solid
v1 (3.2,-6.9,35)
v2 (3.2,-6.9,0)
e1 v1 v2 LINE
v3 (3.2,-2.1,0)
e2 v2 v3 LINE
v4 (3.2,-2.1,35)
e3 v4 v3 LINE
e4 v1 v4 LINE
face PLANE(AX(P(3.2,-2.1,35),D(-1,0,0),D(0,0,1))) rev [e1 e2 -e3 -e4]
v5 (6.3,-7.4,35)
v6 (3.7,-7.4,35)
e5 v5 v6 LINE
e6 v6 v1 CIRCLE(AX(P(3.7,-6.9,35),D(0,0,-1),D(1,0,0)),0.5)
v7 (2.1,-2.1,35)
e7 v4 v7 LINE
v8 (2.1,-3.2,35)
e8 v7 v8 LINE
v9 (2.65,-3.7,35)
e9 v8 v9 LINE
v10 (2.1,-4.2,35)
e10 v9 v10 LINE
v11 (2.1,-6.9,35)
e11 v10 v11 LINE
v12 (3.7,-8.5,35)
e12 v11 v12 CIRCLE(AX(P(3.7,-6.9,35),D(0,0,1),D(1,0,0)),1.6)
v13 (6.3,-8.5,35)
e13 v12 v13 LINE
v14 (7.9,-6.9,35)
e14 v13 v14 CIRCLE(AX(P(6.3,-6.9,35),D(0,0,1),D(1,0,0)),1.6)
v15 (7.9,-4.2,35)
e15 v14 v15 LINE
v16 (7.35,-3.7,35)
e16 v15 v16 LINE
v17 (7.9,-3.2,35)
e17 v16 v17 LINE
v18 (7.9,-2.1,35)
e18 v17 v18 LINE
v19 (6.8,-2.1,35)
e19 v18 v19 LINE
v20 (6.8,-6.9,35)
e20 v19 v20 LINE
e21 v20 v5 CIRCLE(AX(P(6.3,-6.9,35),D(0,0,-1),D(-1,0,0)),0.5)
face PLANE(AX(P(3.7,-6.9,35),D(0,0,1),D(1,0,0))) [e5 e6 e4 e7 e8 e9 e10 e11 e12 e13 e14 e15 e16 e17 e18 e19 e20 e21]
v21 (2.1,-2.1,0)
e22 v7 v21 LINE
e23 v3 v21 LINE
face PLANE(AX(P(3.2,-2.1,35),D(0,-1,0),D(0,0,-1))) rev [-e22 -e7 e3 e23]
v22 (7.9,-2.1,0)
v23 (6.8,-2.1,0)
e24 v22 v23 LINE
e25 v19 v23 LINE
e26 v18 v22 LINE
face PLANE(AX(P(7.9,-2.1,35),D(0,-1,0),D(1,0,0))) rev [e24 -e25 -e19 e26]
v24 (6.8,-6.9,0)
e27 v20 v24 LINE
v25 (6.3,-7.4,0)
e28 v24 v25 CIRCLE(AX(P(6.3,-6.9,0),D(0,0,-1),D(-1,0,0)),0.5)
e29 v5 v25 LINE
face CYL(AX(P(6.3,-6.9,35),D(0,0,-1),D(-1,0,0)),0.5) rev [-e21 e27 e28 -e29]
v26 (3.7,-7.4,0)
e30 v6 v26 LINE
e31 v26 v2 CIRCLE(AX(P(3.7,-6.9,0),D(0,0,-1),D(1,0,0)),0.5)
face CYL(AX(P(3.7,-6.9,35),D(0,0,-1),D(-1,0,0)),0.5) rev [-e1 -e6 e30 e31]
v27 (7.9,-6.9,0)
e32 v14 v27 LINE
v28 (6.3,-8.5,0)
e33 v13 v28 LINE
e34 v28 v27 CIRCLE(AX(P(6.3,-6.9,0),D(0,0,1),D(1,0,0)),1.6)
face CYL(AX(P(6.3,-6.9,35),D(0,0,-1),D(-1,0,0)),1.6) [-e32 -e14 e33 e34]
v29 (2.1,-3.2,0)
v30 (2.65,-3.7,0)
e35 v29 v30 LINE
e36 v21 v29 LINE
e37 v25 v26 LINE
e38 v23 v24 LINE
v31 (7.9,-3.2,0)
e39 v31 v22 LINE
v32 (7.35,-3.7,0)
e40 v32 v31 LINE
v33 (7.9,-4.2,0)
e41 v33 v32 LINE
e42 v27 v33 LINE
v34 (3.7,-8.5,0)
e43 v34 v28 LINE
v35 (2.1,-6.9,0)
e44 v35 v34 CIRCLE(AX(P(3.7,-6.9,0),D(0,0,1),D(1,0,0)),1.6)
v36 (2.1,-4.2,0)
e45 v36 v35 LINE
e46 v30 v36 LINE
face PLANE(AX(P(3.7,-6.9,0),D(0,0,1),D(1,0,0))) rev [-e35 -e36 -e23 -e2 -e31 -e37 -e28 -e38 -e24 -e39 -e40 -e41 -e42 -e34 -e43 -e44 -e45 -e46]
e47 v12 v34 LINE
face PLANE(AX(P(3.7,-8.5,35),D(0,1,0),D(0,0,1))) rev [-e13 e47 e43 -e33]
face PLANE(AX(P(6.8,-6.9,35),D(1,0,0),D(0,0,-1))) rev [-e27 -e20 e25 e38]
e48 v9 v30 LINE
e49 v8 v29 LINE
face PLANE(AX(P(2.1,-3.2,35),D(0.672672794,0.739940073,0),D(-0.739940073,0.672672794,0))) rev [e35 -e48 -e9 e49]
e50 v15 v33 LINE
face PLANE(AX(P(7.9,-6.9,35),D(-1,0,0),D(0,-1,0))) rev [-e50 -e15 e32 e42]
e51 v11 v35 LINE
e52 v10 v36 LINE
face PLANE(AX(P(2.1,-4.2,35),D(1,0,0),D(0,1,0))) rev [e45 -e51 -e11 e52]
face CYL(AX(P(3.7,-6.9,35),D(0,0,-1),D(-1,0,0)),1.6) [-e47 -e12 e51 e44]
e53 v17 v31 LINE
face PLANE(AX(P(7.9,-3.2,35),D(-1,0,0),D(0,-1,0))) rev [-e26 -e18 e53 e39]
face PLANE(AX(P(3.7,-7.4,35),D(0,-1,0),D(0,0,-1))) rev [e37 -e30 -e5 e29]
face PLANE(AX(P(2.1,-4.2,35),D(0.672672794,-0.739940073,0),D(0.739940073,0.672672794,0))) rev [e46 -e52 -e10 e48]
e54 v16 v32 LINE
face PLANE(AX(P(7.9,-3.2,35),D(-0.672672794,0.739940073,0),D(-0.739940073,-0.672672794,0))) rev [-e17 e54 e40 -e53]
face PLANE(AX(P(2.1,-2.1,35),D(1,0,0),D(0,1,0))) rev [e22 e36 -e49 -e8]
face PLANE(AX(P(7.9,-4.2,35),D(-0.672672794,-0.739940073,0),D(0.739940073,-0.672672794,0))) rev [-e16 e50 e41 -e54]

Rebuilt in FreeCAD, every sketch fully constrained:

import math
import FreeCAD as App
import Part
import Sketcher
from FreeCAD import Vector
Q = App.Units.Quantity

doc = App.newDocument("Part")
body = doc.addObject("PartDesign::Body", "Body")

# Sketch on XY plane
sketch1 = body.newObject("Sketcher::SketchObject", "Sketch")
sketch1.AttachmentSupport = (doc.getObject("XY_Plane"), [""])
sketch1.MapMode = "FlatFace"
sketch1.addGeometry([
    Part.LineSegment(Vector(6.8, -2.1, 0), Vector(6.8, -6.9, 0)),  # 0
    Part.ArcOfCircle(Part.Circle(Vector(6.3, -6.9, 0), Vector(0, 0, 1), 0.5), math.radians(-90), math.radians(0)),  # 1
    Part.LineSegment(Vector(6.3, -7.4, 0), Vector(3.7, -7.4, 0)),  # 2
    Part.ArcOfCircle(Part.Circle(Vector(3.7, -6.9, 0), Vector(0, 0, 1), 0.5), math.radians(180), math.radians(270)),  # 3
    Part.LineSegment(Vector(3.2, -6.9, 0), Vector(3.2, -2.1, 0)),  # 4
    Part.LineSegment(Vector(3.2, -2.1, 0), Vector(2.1, -2.1, 0)),  # 5
    Part.LineSegment(Vector(2.1, -2.1, 0), Vector(2.1, -3.2, 0)),  # 6
    Part.LineSegment(Vector(2.1, -3.2, 0), Vector(2.65, -3.7, 0)),  # 7
    Part.LineSegment(Vector(2.65, -3.7, 0), Vector(2.1, -4.2, 0)),  # 8
    Part.LineSegment(Vector(2.1, -4.2, 0), Vector(2.1, -6.9, 0)),  # 9
    Part.ArcOfCircle(Part.Circle(Vector(3.7, -6.9, 0), Vector(0, 0, 1), 1.6), math.radians(180), math.radians(270)),  # 10
    Part.LineSegment(Vector(3.7, -8.5, 0), Vector(6.3, -8.5, 0)),  # 11
    Part.ArcOfCircle(Part.Circle(Vector(6.3, -6.9, 0), Vector(0, 0, 1), 1.6), math.radians(-90), math.radians(0)),  # 12
    Part.LineSegment(Vector(7.9, -6.9, 0), Vector(7.9, -4.2, 0)),  # 13
    Part.LineSegment(Vector(7.9, -4.2, 0), Vector(7.35, -3.7, 0)),  # 14
    Part.LineSegment(Vector(7.35, -3.7, 0), Vector(7.9, -3.2, 0)),  # 15
    Part.LineSegment(Vector(7.9, -3.2, 0), Vector(7.9, -2.1, 0)),  # 16
    Part.LineSegment(Vector(7.9, -2.1, 0), Vector(6.8, -2.1, 0)),  # 17
], False)
sketch1.addConstraint([
    Sketcher.Constraint("Tangent", 0, 2, 1, 2),
    Sketcher.Constraint("Tangent", 1, 1, 2, 1),
    Sketcher.Constraint("Tangent", 2, 2, 3, 2),
    Sketcher.Constraint("Tangent", 3, 1, 4, 1),
    Sketcher.Constraint("Coincident", 4, 2, 5, 1),
    Sketcher.Constraint("Coincident", 5, 2, 6, 1),
    Sketcher.Constraint("Coincident", 6, 2, 7, 1),
    Sketcher.Constraint("Coincident", 7, 2, 8, 1),
    Sketcher.Constraint("Coincident", 8, 2, 9, 1),
    Sketcher.Constraint("Tangent", 9, 2, 10, 1),
    Sketcher.Constraint("Tangent", 10, 2, 11, 1),
    Sketcher.Constraint("Tangent", 11, 2, 12, 1),
    Sketcher.Constraint("Tangent", 12, 2, 13, 1),
    Sketcher.Constraint("Coincident", 13, 2, 14, 1),
    Sketcher.Constraint("Coincident", 14, 2, 15, 1),
    Sketcher.Constraint("Coincident", 15, 2, 16, 1),
    Sketcher.Constraint("Coincident", 16, 2, 17, 1),
    Sketcher.Constraint("Coincident", 17, 2, 0, 1),
    Sketcher.Constraint("Vertical", 0),
    Sketcher.Constraint("Horizontal", 2),
    Sketcher.Constraint("Vertical", 4),
    Sketcher.Constraint("Horizontal", 5),
    Sketcher.Constraint("Vertical", 6),
    Sketcher.Constraint("Vertical", 9),
    Sketcher.Constraint("Horizontal", 11),
    Sketcher.Constraint("Vertical", 13),
    Sketcher.Constraint("Vertical", 16),
    Sketcher.Constraint("Horizontal", 17),
    Sketcher.Constraint("Coincident", 10, 3, 3, 3),
    Sketcher.Constraint("Coincident", 12, 3, 1, 3),
    Sketcher.Constraint("Equal", 1, 3),
    Sketcher.Constraint("Parallel", 7, 14),
    Sketcher.Constraint("Parallel", 8, 15),
    Sketcher.Constraint("Horizontal", 8, 2, 13, 2),
    Sketcher.Constraint("Horizontal", 7, 2, 14, 2),
    Sketcher.Constraint("Horizontal", 6, 2, 15, 2),
    Sketcher.Constraint("Horizontal", 5, 2, 16, 2),
    Sketcher.Constraint("Vertical", 6, 2, 8, 2),
    Sketcher.Constraint("Vertical", 13, 2, 15, 2),
    Sketcher.Constraint("Equal", 17, 6),
    Sketcher.Constraint("Radius", 1, Q("0.5 mm")),
    Sketcher.Constraint("Radius", 10, Q("1.6 mm")),
    Sketcher.Constraint("DistanceX", 2, 2, 2, 1, Q("2.6 mm")),
    Sketcher.Constraint("DistanceY", 0, 2, 0, 1, Q("4.8 mm")),
    Sketcher.Constraint("DistanceY", 9, 2, 9, 1, Q("2.7 mm")),
    Sketcher.Constraint("DistanceX", -1, 1, 1, 3, Q("6.3 mm")),
    Sketcher.Constraint("DistanceY", 1, 3, -1, 1, Q("6.9 mm")),
    Sketcher.Constraint("DistanceX", -1, 1, 7, 2, Q("2.65 mm")),
])
pad1 = body.newObject("PartDesign::Pad", "Pad")
pad1.Profile = sketch1
pad1.Length = 35

doc.recompute()
